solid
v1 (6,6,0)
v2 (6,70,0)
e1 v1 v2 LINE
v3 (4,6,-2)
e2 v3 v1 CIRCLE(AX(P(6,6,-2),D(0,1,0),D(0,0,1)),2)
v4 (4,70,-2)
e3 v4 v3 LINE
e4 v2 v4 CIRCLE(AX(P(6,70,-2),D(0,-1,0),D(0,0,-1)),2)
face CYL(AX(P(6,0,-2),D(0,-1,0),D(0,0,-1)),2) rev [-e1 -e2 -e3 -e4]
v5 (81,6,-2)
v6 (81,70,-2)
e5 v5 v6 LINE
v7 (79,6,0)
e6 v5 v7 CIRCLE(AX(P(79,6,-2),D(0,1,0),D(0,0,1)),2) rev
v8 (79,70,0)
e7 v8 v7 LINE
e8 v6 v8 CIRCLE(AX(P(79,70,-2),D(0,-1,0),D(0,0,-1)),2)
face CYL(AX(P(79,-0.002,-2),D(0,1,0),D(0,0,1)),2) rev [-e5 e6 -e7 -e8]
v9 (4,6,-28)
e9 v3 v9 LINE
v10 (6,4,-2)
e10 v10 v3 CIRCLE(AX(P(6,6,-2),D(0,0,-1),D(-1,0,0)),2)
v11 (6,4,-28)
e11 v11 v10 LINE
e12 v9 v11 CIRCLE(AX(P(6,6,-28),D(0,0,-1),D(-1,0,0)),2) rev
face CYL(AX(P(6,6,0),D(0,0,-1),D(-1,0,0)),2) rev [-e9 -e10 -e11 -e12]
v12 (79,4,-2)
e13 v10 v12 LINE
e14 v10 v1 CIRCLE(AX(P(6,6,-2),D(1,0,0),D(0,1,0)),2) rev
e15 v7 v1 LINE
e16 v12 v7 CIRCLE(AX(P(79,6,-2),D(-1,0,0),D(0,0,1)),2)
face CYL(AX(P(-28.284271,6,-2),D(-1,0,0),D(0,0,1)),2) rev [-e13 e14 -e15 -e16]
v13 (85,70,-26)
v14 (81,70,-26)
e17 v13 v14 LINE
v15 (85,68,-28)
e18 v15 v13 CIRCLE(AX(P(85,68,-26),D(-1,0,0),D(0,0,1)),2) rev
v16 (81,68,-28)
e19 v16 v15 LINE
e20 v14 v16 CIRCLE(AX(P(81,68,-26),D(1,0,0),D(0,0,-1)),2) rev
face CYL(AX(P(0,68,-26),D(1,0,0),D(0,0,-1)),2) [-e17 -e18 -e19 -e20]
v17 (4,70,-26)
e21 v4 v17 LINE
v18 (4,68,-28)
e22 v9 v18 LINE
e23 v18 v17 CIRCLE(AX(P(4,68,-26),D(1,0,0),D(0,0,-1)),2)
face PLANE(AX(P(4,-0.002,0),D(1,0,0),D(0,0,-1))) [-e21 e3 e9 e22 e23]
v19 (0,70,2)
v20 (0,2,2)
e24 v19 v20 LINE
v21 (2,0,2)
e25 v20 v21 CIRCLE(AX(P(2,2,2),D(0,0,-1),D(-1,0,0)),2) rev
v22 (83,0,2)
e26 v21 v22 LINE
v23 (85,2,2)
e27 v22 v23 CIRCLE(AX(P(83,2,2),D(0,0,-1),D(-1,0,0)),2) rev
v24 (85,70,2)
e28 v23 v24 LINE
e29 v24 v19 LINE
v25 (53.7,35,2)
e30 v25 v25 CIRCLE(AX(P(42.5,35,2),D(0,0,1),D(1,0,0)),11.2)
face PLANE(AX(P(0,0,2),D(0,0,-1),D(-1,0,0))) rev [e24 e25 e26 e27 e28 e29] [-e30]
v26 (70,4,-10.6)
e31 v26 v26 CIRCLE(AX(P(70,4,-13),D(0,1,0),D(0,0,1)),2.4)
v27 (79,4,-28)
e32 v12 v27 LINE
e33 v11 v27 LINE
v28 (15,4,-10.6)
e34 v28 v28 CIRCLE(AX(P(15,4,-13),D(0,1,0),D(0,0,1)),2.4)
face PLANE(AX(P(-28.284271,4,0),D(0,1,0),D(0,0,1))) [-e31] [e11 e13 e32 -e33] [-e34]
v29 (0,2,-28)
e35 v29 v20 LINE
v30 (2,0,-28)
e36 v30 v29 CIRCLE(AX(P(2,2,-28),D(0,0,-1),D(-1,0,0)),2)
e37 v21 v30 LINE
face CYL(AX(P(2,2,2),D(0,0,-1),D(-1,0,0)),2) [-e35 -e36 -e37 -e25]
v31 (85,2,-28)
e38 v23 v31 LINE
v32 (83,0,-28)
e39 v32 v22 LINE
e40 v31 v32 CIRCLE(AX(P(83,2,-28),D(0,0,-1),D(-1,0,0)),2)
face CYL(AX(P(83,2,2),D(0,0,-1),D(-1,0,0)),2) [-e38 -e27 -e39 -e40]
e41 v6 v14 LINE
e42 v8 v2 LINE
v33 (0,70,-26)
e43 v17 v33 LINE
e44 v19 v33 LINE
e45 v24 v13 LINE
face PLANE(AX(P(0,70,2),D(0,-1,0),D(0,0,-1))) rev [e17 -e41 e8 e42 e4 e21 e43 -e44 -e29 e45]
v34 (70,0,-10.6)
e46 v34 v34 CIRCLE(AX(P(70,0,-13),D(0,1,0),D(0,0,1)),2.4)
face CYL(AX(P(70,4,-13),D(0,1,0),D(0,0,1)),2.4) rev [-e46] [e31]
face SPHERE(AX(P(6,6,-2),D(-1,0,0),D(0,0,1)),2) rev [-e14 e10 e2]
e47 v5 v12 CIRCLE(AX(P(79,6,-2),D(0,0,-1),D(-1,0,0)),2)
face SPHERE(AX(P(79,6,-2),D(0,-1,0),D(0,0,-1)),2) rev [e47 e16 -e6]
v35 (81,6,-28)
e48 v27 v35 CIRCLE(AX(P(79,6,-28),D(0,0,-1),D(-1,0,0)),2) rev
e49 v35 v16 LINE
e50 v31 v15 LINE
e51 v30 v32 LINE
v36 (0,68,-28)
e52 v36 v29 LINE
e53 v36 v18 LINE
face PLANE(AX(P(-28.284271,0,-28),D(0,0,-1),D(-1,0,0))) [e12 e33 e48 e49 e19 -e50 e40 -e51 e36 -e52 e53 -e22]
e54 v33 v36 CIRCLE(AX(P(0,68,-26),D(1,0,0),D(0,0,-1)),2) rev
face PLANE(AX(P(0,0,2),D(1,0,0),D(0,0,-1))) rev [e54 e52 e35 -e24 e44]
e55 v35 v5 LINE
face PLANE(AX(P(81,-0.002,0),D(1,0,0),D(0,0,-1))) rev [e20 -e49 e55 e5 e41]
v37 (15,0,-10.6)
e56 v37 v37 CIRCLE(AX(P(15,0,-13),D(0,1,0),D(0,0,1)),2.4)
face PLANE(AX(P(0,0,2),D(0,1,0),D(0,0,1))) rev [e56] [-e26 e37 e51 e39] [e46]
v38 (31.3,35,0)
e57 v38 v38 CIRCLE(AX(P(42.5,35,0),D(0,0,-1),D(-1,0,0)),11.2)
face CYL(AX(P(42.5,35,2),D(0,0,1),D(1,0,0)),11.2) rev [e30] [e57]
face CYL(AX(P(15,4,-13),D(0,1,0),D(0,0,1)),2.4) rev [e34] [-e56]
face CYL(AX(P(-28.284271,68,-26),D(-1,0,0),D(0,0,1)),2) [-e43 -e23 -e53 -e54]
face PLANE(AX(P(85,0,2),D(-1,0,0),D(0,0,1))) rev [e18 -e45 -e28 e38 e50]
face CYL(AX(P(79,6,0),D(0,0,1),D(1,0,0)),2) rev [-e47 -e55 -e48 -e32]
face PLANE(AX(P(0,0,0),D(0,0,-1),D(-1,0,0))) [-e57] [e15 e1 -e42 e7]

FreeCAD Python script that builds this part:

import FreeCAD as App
import Part
import Sketcher


def edges_at(feature, points):
    """Names of the edges that pass closest to the given points."""
    edges = feature.Shape.Edges
    near = lambda p: min(range(len(edges)), key=lambda i: edges[i].distToShape(Part.Vertex(*p))[0])
    return sorted({f"Edge{near(p) + 1}" for p in points})

doc = App.newDocument("Part")
body = doc.addObject("PartDesign::Body", "Body")

# Sketch on XY plane
sketch1 = body.newObject("Sketcher::SketchObject", "Sketch")
sketch1.AttachmentSupport = (doc.getObject("XY_Plane"), [""])
sketch1.MapMode = "FlatFace"
sketch1.addGeometry(Part.LineSegment(App.Vector(0, 70, 0), App.Vector(0, 0, 0)), False)
sketch1.addGeometry(Part.LineSegment(App.Vector(0, 0, 0), App.Vector(85, 0, 0)), False)
sketch1.addGeometry(Part.LineSegment(App.Vector(85, 0, 0), App.Vector(85, 70, 0)), False)
sketch1.addGeometry(Part.LineSegment(App.Vector(85, 70, 0), App.Vector(0, 70, 0)), False)
sketch1.addConstraint(Sketcher.Constraint("Coincident", 0, 2, 1, 1))
sketch1.addConstraint(Sketcher.Constraint("Coincident", 1, 2, 2, 1))
sketch1.addConstraint(Sketcher.Constraint("Coincident", 2, 2, 3, 1))
sketch1.addConstraint(Sketcher.Constraint("Coincident", 3, 2, 0, 1))
sketch1.addConstraint(Sketcher.Constraint("Vertical", 0))
sketch1.addConstraint(Sketcher.Constraint("Horizontal", 1))
sketch1.addConstraint(Sketcher.Constraint("Vertical", 2))
sketch1.addConstraint(Sketcher.Constraint("Horizontal", 3))
sketch1.addConstraint(Sketcher.Constraint("Coincident", 0, 2, -1, 1))
sketch1.addConstraint(Sketcher.Constraint("DistanceX", 1, 1, 1, 2, 85.0))
sketch1.addConstraint(Sketcher.Constraint("DistanceY", 0, 2, 0, 1, 70.0))
pad1 = body.newObject("PartDesign::Pad", "Pad")
pad1.Profile = sketch1
pad1.Length = 2

# Sketch on XY plane
sketch2 = body.newObject("Sketcher::SketchObject", "Sketch001")
sketch2.AttachmentSupport = (doc.getObject("XY_Plane"), [""])
sketch2.MapMode = "FlatFace"
sketch2.AttachmentOffset = App.Placement(App.Vector(0, 0, 2), App.Rotation())
sketch2.addGeometry(Part.Circle(App.Vector(42, 35, 0), App.Vector(0, 0, 1), 11), False)
sketch2.addConstraint(Sketcher.Constraint("Diameter", 0, 22.4))
sketch2.addConstraint(Sketcher.Constraint("DistanceY", -1, 1, 0, 3, 35.0))
sketch2.addConstraint(Sketcher.Constraint("DistanceX", -1, 1, 0, 3, 42.5))
doc.recompute()
hole = body.newObject("PartDesign::Hole", "Hole")
hole.Profile = sketch2
hole.ThreadType = "None"
hole.Diameter = 22.4
hole.DepthType = "ThroughAll"

# Sketch on YZ plane
sketch3 = body.newObject("Sketcher::SketchObject", "Sketch002")
sketch3.AttachmentSupport = (doc.getObject("YZ_Plane"), [""])
sketch3.MapMode = "FlatFace"
sketch3.AttachmentOffset = App.Placement(App.Vector(0, 0, 85), App.Rotation())
sketch3.addGeometry(Part.LineSegment(App.Vector(4, 0, 0), App.Vector(0, 0, 0)), False)
sketch3.addGeometry(Part.LineSegment(App.Vector(0, 0, 0), App.Vector(0, -28, 0)), False)
sketch3.addGeometry(Part.LineSegment(App.Vector(0, -28, 0), App.Vector(4, -28, 0)), False)
sketch3.addGeometry(Part.LineSegment(App.Vector(4, -28, 0), App.Vector(4, 0, 0)), False)
sketch3.addConstraint(Sketcher.Constraint("Coincident", 0, 2, 1, 1))
sketch3.addConstraint(Sketcher.Constraint("Coincident", 1, 2, 2, 1))
sketch3.addConstraint(Sketcher.Constraint("Coincident", 2, 2, 3, 1))
sketch3.addConstraint(Sketcher.Constraint("Coincident", 3, 2, 0, 1))
sketch3.addConstraint(Sketcher.Constraint("Horizontal", 0))
sketch3.addConstraint(Sketcher.Constraint("Vertical", 1))
sketch3.addConstraint(Sketcher.Constraint("Horizontal", 2))
sketch3.addConstraint(Sketcher.Constraint("Vertical", 3))
sketch3.addConstraint(Sketcher.Constraint("Coincident", 0, 2, -1, 1))
sketch3.addConstraint(Sketcher.Constraint("DistanceX", 0, 2, 0, 1, 4.0))
sketch3.addConstraint(Sketcher.Constraint("DistanceY", 1, 2, 1, 1, 28.0))
pad2 = body.newObject("PartDesign::Pad", "Pad001")
pad2.Profile = sketch3
pad2.Length = 85
pad2.Reversed = True

# Sketch on XZ plane
sketch4 = body.newObject("Sketcher::SketchObject", "Sketch003")
sketch4.AttachmentSupport = (doc.getObject("XZ_Plane"), [""])
sketch4.MapMode = "FlatFace"
sketch4.AttachmentOffset = App.Placement(App.Vector(0, 0, -70), App.Rotation())
sketch4.addGeometry(Part.LineSegment(App.Vector(81, -28, 0), App.Vector(81, 0, 0)), False)
sketch4.addGeometry(Part.LineSegment(App.Vector(81, 0, 0), App.Vector(85, 0, 0)), False)
sketch4.addGeometry(Part.LineSegment(App.Vector(85, 0, 0), App.Vector(85, -28, 0)), False)
sketch4.addGeometry(Part.LineSegment(App.Vector(85, -28, 0), App.Vector(81, -28, 0)), False)
sketch4.addConstraint(Sketcher.Constraint("Coincident", 0, 2, 1, 1))
sketch4.addConstraint(Sketcher.Constraint("Coincident", 1, 2, 2, 1))
sketch4.addConstraint(Sketcher.Constraint("Coincident", 2, 2, 3, 1))
sketch4.addConstraint(Sketcher.Constraint("Coincident", 3, 2, 0, 1))
sketch4.addConstraint(Sketcher.Constraint("Vertical", 0))
sketch4.addConstraint(Sketcher.Constraint("Horizontal", 1))
sketch4.addConstraint(Sketcher.Constraint("Vertical", 2))
sketch4.addConstraint(Sketcher.Constraint("Horizontal", 3))
sketch4.addConstraint(Sketcher.Constraint("PointOnObject", 0, 2, -1))
sketch4.addConstraint(Sketcher.Constraint("DistanceX", 1, 1, 1, 2, 4.0))
sketch4.addConstraint(Sketcher.Constraint("DistanceY", 0, 1, 0, 2, 28.0))
sketch4.addConstraint(Sketcher.Constraint("DistanceX", -1, 1, 0, 2, 81.0))
pad3 = body.newObject("PartDesign::Pad", "Pad002")
pad3.Profile = sketch4
pad3.Type = "UpToFirst"

# Sketch on XZ plane
sketch5 = body.newObject("Sketcher::SketchObject", "Sketch004")
sketch5.AttachmentSupport = (doc.getObject("XZ_Plane"), [""])
sketch5.MapMode = "FlatFace"
sketch5.AttachmentOffset = App.Placement(App.Vector(0, 0, -70), App.Rotation())
sketch5.addGeometry(Part.LineSegment(App.Vector(0, -28, 0), App.Vector(0, 0, 0)), False)
sketch5.addGeometry(Part.LineSegment(App.Vector(0, 0, 0), App.Vector(4, 0, 0)), False)
sketch5.addGeometry(Part.LineSegment(App.Vector(4, 0, 0), App.Vector(4, -28, 0)), False)
sketch5.addGeometry(Part.LineSegment(App.Vector(4, -28, 0), App.Vector(0, -28, 0)), False)
sketch5.addConstraint(Sketcher.Constraint("Coincident", 0, 2, 1, 1))
sketch5.addConstraint(Sketcher.Constraint("Coincident", 1, 2, 2, 1))
sketch5.addConstraint(Sketcher.Constraint("Coincident", 2, 2, 3, 1))
sketch5.addConstraint(Sketcher.Constraint("Coincident", 3, 2, 0, 1))
sketch5.addConstraint(Sketcher.Constraint("Vertical", 0))
sketch5.addConstraint(Sketcher.Constraint("Horizontal", 1))
sketch5.addConstraint(Sketcher.Constraint("Vertical", 2))
sketch5.addConstraint(Sketcher.Constraint("Horizontal", 3))
sketch5.addConstraint(Sketcher.Constraint("Coincident", 0, 2, -1, 1))
sketch5.addConstraint(Sketcher.Constraint("DistanceX", 1, 1, 1, 2, 4.0))
sketch5.addConstraint(Sketcher.Constraint("DistanceY", 0, 1, 0, 2, 28.0))
pad4 = body.newObject("PartDesign::Pad", "Pad003")
pad4.Profile = sketch5
pad4.Type = "UpToFirst"

# Sketch on XZ plane
sketch6 = body.newObject("Sketcher::SketchObject", "Sketch005")
sketch6.AttachmentSupport = (doc.getObject("XZ_Plane"), [""])
sketch6.MapMode = "FlatFace"
sketch6.AttachmentOffset = App.Placement(App.Vector(0, 0, -4), App.Rotation())
sketch6.addGeometry(Part.Circle(App.Vector(15, -13, 0), App.Vector(0, 0, 1), 2.4), False)
sketch6.addGeometry(Part.Circle(App.Vector(70, -13, 0), App.Vector(0, 0, 1), 2.4), False)
sketch6.addConstraint(Sketcher.Constraint("Equal", 0, 1))
sketch6.addConstraint(Sketcher.Constraint("Horizontal", 0, 3, 1, 3))
sketch6.addConstraint(Sketcher.Constraint("Diameter", 0, 4.8))
sketch6.addConstraint(Sketcher.Constraint("DistanceX", -1, 1, 0, 3, 15.0))
sketch6.addConstraint(Sketcher.Constraint("DistanceY", 0, 3, -1, 1, 13.0))
sketch6.addConstraint(Sketcher.Constraint("DistanceX", -1, 1, 1, 3, 70.0))
doc.recompute()
hole2 = body.newObject("PartDesign::Hole", "Hole001")
hole2.Profile = sketch6
hole2.ThreadType = "None"
hole2.Diameter = 4.8
hole2.DepthType = "ThroughAll"
hole2.Reversed = True
doc.recompute()

fillet = body.newObject("PartDesign::Fillet", "Fillet")
fillet.Base = (hole2, edges_at(hole2, [
    (81, 4, -14),
    (81, 37, 0),
    (83, 70, -28),
    (42.5, 4, 0),
    (4, 4, -14),
    (2, 70, -28),
    (4, 37, 0),
    (85, 0, -13),
    (0, 0, -13),
]))
fillet.Radius = 2

doc.recompute()
